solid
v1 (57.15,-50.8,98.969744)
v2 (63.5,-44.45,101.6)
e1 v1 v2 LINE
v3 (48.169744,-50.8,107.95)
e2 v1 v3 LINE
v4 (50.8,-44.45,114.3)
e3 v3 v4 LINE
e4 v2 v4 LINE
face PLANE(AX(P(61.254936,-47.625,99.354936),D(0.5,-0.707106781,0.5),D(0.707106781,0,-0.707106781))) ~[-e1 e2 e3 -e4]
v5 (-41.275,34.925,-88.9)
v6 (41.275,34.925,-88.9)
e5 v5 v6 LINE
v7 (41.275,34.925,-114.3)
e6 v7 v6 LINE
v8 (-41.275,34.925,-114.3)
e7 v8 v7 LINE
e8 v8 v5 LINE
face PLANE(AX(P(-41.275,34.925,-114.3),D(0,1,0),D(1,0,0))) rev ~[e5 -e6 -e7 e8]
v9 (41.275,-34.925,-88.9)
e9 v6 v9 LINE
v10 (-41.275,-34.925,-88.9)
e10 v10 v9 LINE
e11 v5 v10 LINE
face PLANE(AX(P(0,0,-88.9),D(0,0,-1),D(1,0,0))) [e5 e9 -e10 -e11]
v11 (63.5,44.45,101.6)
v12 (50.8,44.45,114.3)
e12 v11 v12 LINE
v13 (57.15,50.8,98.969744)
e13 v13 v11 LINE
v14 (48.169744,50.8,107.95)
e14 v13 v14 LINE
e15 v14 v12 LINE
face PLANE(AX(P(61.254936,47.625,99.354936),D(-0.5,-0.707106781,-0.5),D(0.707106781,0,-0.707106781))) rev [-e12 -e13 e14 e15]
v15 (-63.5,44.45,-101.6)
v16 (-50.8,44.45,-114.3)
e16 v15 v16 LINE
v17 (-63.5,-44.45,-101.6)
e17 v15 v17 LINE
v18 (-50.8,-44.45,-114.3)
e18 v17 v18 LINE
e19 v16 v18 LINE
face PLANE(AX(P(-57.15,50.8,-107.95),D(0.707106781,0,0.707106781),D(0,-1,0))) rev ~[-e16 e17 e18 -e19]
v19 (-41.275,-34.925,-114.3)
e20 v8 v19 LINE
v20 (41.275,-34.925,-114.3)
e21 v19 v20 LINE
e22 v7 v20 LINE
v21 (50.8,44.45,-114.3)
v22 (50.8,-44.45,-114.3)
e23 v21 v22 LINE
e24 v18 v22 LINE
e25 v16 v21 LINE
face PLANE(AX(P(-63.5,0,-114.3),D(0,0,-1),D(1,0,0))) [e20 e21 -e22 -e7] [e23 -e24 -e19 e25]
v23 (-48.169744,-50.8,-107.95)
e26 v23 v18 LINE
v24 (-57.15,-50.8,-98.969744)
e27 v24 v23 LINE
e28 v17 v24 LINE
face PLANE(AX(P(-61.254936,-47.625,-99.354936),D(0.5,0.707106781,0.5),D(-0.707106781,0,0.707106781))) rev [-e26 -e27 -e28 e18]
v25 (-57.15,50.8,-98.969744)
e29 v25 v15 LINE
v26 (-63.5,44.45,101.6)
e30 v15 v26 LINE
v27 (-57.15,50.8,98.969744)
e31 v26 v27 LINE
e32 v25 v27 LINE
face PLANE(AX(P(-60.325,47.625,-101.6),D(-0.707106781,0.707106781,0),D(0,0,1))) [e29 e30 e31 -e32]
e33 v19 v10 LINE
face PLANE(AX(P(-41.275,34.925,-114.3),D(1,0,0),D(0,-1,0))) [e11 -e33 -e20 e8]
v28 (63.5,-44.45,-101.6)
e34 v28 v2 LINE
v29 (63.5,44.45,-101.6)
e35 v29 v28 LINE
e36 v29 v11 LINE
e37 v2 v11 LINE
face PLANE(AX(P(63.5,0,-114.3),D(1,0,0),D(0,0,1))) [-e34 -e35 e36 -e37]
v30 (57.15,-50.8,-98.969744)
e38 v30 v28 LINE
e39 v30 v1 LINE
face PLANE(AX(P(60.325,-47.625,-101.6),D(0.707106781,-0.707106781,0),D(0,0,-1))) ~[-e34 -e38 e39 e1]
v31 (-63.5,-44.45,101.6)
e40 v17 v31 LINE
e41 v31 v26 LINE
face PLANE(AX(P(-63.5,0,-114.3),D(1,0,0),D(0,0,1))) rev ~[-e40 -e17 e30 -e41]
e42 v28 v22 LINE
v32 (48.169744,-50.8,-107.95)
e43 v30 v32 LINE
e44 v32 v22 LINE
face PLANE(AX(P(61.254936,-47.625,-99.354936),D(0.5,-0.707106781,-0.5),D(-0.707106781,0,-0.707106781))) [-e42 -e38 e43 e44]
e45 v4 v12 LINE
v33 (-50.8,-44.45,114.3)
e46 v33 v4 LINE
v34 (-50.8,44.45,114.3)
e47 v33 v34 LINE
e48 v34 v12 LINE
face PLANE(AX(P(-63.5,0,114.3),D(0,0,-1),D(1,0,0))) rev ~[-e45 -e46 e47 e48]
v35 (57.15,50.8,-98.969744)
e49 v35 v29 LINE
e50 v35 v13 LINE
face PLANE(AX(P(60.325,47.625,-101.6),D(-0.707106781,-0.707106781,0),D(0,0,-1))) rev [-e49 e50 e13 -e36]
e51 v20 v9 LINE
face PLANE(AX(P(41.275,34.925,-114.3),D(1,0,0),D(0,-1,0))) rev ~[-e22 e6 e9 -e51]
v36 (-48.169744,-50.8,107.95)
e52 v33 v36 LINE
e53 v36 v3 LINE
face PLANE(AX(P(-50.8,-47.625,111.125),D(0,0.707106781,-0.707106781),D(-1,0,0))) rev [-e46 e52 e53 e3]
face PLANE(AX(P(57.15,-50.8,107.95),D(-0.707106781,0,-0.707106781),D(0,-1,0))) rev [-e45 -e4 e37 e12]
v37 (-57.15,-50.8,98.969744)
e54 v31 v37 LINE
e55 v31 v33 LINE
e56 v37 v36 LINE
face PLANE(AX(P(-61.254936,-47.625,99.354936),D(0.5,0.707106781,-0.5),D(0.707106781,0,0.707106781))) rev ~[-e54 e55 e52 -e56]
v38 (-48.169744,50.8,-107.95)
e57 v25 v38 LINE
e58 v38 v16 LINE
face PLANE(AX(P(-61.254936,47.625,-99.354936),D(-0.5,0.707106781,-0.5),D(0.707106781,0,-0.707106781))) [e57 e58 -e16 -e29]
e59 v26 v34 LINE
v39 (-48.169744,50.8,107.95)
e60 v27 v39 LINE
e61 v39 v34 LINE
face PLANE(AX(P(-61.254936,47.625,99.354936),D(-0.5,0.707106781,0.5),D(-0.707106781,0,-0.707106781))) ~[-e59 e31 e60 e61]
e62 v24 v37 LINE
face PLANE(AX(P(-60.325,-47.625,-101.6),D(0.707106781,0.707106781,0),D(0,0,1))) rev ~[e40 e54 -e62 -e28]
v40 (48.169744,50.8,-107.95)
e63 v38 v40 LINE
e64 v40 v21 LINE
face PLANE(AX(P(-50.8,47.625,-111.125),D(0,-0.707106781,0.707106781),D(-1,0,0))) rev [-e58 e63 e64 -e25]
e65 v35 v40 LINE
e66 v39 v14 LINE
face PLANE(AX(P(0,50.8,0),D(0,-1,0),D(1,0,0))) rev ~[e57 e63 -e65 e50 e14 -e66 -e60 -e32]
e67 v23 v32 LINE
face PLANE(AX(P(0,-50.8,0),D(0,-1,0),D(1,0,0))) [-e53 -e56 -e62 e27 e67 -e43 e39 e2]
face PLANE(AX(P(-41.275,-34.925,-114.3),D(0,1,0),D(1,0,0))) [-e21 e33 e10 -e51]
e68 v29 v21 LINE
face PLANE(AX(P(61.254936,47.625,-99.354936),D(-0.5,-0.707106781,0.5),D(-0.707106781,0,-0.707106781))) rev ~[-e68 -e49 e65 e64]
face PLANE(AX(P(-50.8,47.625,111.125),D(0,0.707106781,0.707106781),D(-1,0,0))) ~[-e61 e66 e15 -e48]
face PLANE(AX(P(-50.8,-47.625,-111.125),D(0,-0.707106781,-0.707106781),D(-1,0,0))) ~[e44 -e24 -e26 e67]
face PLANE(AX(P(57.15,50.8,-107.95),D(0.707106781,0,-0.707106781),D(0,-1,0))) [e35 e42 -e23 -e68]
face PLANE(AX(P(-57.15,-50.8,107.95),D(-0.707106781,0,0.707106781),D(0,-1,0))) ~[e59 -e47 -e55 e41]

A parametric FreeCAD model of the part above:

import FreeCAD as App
import Part
import Sketcher

V = App.Vector
Q = App.Units.Quantity


def edges_at(feature, points):
    """Names of the edges that pass closest to the given points."""
    edges = feature.Shape.Edges
    near = lambda p: min(range(len(edges)), key=lambda i: edges[i].distToShape(Part.Vertex(*p))[0])
    return sorted({f"Edge{near(p) + 1}" for p in points})

doc = App.newDocument("Part")
body = doc.addObject("PartDesign::Body", "Body")

# Sketch on XZ plane
sketch1 = body.newObject("Sketcher::SketchObject", "Sketch")
sketch1.AttachmentSupport = (doc.getObject("XZ_Plane"), [""])
sketch1.MapMode = "FlatFace"
sketch1.addGeometry([
    Part.LineSegment(V(-64, 114, 0), V(-64, -114, 0)),
    Part.LineSegment(V(-64, -114, 0), V(64, -114, 0)),
    Part.LineSegment(V(64, -114, 0), V(64, 114, 0)),
    Part.LineSegment(V(64, 114, 0), V(-64, 114, 0)),
], False)
sketch1.addConstraint([
    Sketcher.Constraint("Coincident", 0, 2, 1, 1),
    Sketcher.Constraint("Coincident", 1, 2, 2, 1),
    Sketcher.Constraint("Coincident", 2, 2, 3, 1),
    Sketcher.Constraint("Coincident", 3, 2, 0, 1),
    Sketcher.Constraint("Vertical", 0),
    Sketcher.Constraint("Horizontal", 1),
    Sketcher.Constraint("Vertical", 2),
    Sketcher.Constraint("Horizontal", 3),
    Sketcher.Constraint("Symmetric", 0, 2, 2, 2, -1, 1),
    Sketcher.Constraint("DistanceX", 1, 1, 1, 2, Q("5 in")),
    Sketcher.Constraint("DistanceY", 0, 2, 0, 1, Q("9 in")),
])
pad1 = body.newObject("PartDesign::Pad", "Pad")
pad1.Profile = sketch1
pad1.Length = Q("4 in")
pad1.Midplane = True
doc.recompute()

chamfer = body.newObject("PartDesign::Chamfer", "Chamfer")
chamfer.Base = (pad1, edges_at(pad1, [
    (-63.5, 0, 114.3),
    (63.5, 0, 114.3),
    (63.5, 0, -114.3),
    (-63.5, 0, -114.3),
]))
chamfer.Size = Q("0.5 in")
doc.recompute()

chamfer2 = body.newObject("PartDesign::Chamfer", "Chamfer001")
chamfer2.Base = (chamfer, edges_at(chamfer, [
    (0, -50.8, -114.3),
    (-57.15, -50.8, -107.95),
    (57.15, -50.8, -107.95),
    (-63.5, -50.8, 0),
    (63.5, -50.8, 0),
    (-57.15, -50.8, 107.95),
    (57.15, -50.8, 107.95),
    (0, -50.8, 114.3),
    (0, 50.8, -114.3),
    (-57.15, 50.8, -107.95),
    (57.15, 50.8, -107.95),
    (-63.5, 50.8, 0),
    (63.5, 50.8, 0),
    (-57.15, 50.8, 107.95),
    (57.15, 50.8, 107.95),
    (0, 50.8, 114.3),
]))
chamfer2.Size = Q("0.25 in")

# Sketch on XY plane
sketch2 = body.newObject("Sketcher::SketchObject", "Sketch001")
sketch2.AttachmentSupport = (doc.getObject("XY_Plane"), [""])
sketch2.MapMode = "FlatFace"
sketch2.AttachmentOffset = App.Placement(V(0, 0, -4.5 * 25.4), App.Rotation())
sketch2.addGeometry([
    Part.LineSegment(V(-41, -35, 0), V(-41, 35, 0)),
    Part.LineSegment(V(-41, 35, 0), V(41, 35, 0)),
    Part.LineSegment(V(41, 35, 0), V(41, -35, 0)),
    Part.LineSegment(V(41, -35, 0), V(-41, -35, 0)),
], False)
sketch2.addConstraint([
    Sketcher.Constraint("Coincident", 0, 2, 1, 1),
    Sketcher.Constraint("Coincident", 1, 2, 2, 1),
    Sketcher.Constraint("Coincident", 2, 2, 3, 1),
    Sketcher.Constraint("Coincident", 3, 2, 0, 1),
    Sketcher.Constraint("Vertical", 0),
    Sketcher.Constraint("Horizontal", 1),
    Sketcher.Constraint("Vertical", 2),
    Sketcher.Constraint("Horizontal", 3),
    Sketcher.Constraint("Symmetric", 0, 2, 2, 2, -1, 1),
    Sketcher.Constraint("DistanceX", 1, 1, 1, 2, Q("3.25 in")),
    Sketcher.Constraint("DistanceY", 0, 1, 0, 2, Q("2.75 in")),
])
pocket1 = body.newObject("PartDesign::Pocket", "Pocket")
pocket1.Profile = sketch2
pocket1.Length = Q("1 in")
pocket1.Reversed = True

doc.recompute()
